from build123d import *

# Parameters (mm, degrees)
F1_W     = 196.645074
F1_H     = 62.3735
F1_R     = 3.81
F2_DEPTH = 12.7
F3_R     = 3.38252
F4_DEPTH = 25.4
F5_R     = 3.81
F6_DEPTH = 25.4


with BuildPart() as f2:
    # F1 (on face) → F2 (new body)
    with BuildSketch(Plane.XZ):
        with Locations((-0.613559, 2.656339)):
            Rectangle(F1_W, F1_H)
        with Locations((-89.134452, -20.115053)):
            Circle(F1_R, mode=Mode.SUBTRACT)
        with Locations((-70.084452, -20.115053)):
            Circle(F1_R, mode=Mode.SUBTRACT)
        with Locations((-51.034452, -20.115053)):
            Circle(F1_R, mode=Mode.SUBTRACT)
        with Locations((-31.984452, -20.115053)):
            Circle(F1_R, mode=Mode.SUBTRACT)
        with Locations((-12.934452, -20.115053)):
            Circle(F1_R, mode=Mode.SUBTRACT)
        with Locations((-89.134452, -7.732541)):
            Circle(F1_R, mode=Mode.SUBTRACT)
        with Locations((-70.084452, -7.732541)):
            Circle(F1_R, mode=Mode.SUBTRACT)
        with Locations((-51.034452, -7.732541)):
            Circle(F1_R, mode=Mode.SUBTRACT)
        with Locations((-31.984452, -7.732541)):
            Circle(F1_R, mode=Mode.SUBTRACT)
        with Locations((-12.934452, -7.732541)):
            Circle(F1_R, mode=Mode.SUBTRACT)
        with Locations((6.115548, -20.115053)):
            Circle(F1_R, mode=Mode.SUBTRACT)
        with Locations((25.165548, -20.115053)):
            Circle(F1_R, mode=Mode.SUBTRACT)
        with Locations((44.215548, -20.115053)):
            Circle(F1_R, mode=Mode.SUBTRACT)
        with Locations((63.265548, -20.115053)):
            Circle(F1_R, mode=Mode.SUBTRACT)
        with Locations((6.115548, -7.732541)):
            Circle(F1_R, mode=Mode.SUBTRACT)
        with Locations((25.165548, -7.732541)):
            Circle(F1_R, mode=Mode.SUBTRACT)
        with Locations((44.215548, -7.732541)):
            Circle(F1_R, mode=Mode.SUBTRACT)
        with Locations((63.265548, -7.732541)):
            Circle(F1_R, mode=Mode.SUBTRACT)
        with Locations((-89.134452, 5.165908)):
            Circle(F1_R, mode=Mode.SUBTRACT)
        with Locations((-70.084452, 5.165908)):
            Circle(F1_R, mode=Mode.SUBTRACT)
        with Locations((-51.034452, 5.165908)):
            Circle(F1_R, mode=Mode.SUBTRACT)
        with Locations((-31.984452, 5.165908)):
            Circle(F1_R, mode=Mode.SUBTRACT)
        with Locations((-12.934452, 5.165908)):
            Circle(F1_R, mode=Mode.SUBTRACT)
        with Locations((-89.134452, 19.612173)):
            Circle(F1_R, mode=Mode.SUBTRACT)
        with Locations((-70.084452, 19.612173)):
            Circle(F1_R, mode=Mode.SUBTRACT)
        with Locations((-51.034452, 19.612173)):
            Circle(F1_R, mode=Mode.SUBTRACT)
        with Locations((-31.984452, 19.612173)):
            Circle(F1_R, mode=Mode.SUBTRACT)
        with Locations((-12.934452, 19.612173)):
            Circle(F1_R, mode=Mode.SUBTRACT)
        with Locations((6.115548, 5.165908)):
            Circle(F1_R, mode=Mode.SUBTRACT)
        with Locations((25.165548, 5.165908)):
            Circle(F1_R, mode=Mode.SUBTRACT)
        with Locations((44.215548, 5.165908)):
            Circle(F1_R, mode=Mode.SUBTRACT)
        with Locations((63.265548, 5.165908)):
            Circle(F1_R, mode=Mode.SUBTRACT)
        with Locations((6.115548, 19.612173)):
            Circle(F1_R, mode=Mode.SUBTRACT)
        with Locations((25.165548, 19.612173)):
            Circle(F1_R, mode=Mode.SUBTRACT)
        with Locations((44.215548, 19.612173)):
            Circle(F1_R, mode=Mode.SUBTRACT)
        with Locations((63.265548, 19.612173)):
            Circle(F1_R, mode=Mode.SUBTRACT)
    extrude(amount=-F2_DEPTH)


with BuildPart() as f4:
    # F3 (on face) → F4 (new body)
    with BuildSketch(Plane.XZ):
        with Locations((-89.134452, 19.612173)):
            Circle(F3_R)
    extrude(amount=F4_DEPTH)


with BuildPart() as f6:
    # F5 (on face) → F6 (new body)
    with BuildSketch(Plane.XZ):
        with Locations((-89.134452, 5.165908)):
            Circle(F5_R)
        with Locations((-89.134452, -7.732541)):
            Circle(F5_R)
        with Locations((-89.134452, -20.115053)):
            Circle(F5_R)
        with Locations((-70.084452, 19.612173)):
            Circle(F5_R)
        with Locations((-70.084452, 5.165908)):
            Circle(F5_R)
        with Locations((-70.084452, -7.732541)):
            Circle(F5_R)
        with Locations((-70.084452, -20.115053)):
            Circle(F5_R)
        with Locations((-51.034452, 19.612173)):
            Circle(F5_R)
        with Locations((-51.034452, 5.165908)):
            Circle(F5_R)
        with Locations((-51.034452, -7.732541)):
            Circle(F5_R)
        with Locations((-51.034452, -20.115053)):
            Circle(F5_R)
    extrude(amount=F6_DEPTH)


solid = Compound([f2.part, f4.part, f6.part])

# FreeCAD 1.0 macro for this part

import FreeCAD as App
import Part
import Sketcher
from FreeCAD import Vector
Q = App.Units.Quantity


def add_polygon(sketch, points):
    """Adds a closed chain of lines whose ends are joined by coincident constraints."""
    first, n = sketch.GeometryCount, len(points)
    for a, b in zip(points, points[1:] + points[:1]):
        sketch.addGeometry(Part.LineSegment(App.Vector(*a, 0), App.Vector(*b, 0)), False)
    for i in range(n):
        sketch.addConstraint(Sketcher.Constraint("Coincident", first + i, 2, first + (i + 1) % n, 1))

doc = App.newDocument("Part")
params = doc.addObject("Spreadsheet::Sheet", "Params")
for row, (alias, value) in enumerate([
    ("sketch1_diameter", "0.3 in"),
    ("pad1_length", "0.5 in"),
    ("pad2_length", "1 in"),
    ("sketch3_diameter", "0.3 in"),
    ("pad3_length", "1 in"),
], start=1):
    params.set(f"A{row}", alias)
    params.set(f"B{row}", "=" + value)
    params.setAlias(f"B{row}", alias)

body = doc.addObject("PartDesign::Body", "Body")

sketch1 = body.newObject("Sketcher::SketchObject", "Sketch")
sketch1.AttachmentSupport = (doc.getObject("XZ_Plane"), [""])
sketch1.MapMode = "FlatFace"
add_polygon(sketch1, [(-98.9, 33.8), (-98.9, -28.5), (97.7, -28.5), (97.7, 33.8)])
sketch1.addGeometry(Part.Circle(Vector(-89.1, -20.1, 0), Vector(0, 0, 1), 3.8), False)
sketch1.addGeometry(Part.Circle(Vector(-70.1, -20.1, 0), Vector(0, 0, 1), 3.8), False)
sketch1.addGeometry(Part.Circle(Vector(-51, -20.1, 0), Vector(0, 0, 1), 3.8), False)
sketch1.addGeometry(Part.Circle(Vector(-32, -20.1, 0), Vector(0, 0, 1), 3.8), False)
sketch1.addGeometry(Part.Circle(Vector(-89.1, -7.7, 0), Vector(0, 0, 1), 3.8), False)
sketch1.addGeometry(Part.Circle(Vector(-70.1, -7.7, 0), Vector(0, 0, 1), 3.8), False)
sketch1.addGeometry(Part.Circle(Vector(-51, -7.7, 0), Vector(0, 0, 1), 3.8), False)
sketch1.addGeometry(Part.Circle(Vector(-32, -7.7, 0), Vector(0, 0, 1), 3.8), False)
sketch1.addGeometry(Part.Circle(Vector(-12.9, -20.1, 0), Vector(0, 0, 1), 3.8), False)
sketch1.addGeometry(Part.Circle(Vector(6.1, -20.1, 0), Vector(0, 0, 1), 3.8), False)
sketch1.addGeometry(Part.Circle(Vector(25.2, -20.1, 0), Vector(0, 0, 1), 3.8), False)
sketch1.addGeometry(Part.Circle(Vector(44.2, -20.1, 0), Vector(0, 0, 1), 3.8), False)
sketch1.addGeometry(Part.Circle(Vector(63.3, -20.1, 0), Vector(0, 0, 1), 3.8), False)
sketch1.addGeometry(Part.Circle(Vector(-12.9, -7.7, 0), Vector(0, 0, 1), 3.8), False)
sketch1.addGeometry(Part.Circle(Vector(6.1, -7.7, 0), Vector(0, 0, 1), 3.8), False)
sketch1.addGeometry(Part.Circle(Vector(25.2, -7.7, 0), Vector(0, 0, 1), 3.8), False)
sketch1.addGeometry(Part.Circle(Vector(44.2, -7.7, 0), Vector(0, 0, 1), 3.8), False)
sketch1.addGeometry(Part.Circle(Vector(63.3, -7.7, 0), Vector(0, 0, 1), 3.8), False)
sketch1.addGeometry(Part.Circle(Vector(-89.1, 5.2, 0), Vector(0, 0, 1), 3.8), False)
sketch1.addGeometry(Part.Circle(Vector(-70.1, 5.2, 0), Vector(0, 0, 1), 3.8), False)
sketch1.addGeometry(Part.Circle(Vector(-51, 5.2, 0), Vector(0, 0, 1), 3.8), False)
sketch1.addGeometry(Part.Circle(Vector(-32, 5.2, 0), Vector(0, 0, 1), 3.8), False)
sketch1.addGeometry(Part.Circle(Vector(-89.1, 19.6, 0), Vector(0, 0, 1), 3.8), False)
sketch1.addGeometry(Part.Circle(Vector(-70.1, 19.6, 0), Vector(0, 0, 1), 3.8), False)
sketch1.addGeometry(Part.Circle(Vector(-51, 19.6, 0), Vector(0, 0, 1), 3.8), False)
sketch1.addGeometry(Part.Circle(Vector(-32, 19.6, 0), Vector(0, 0, 1), 3.8), False)
sketch1.addGeometry(Part.Circle(Vector(-12.9, 5.2, 0), Vector(0, 0, 1), 3.8), False)
sketch1.addGeometry(Part.Circle(Vector(6.1, 5.2, 0), Vector(0, 0, 1), 3.8), False)
sketch1.addGeometry(Part.Circle(Vector(25.2, 5.2, 0), Vector(0, 0, 1), 3.8), False)
sketch1.addGeometry(Part.Circle(Vector(44.2, 5.2, 0), Vector(0, 0, 1), 3.8), False)
sketch1.addGeometry(Part.Circle(Vector(63.3, 5.2, 0), Vector(0, 0, 1), 3.8), False)
sketch1.addGeometry(Part.Circle(Vector(-12.9, 19.6, 0), Vector(0, 0, 1), 3.8), False)
sketch1.addGeometry(Part.Circle(Vector(6.1, 19.6, 0), Vector(0, 0, 1), 3.8), False)
sketch1.addGeometry(Part.Circle(Vector(25.2, 19.6, 0), Vector(0, 0, 1), 3.8), False)
sketch1.addGeometry(Part.Circle(Vector(44.2, 19.6, 0), Vector(0, 0, 1), 3.8), False)
sketch1.addGeometry(Part.Circle(Vector(63.3, 19.6, 0), Vector(0, 0, 1), 3.8), False)
sketch1.addConstraint(Sketcher.Constraint("Vertical", 0))
sketch1.addConstraint(Sketcher.Constraint("Horizontal", 1))
sketch1.addConstraint(Sketcher.Constraint("Vertical", 2))
sketch1.addConstraint(Sketcher.Constraint("Horizontal", 3))
sketch1.addConstraint(Sketcher.Constraint("Equal", 4, 5))
sketch1.addConstraint(Sketcher.Constraint("Equal", 5, 6))
sketch1.addConstraint(Sketcher.Constraint("Equal", 6, 7))
sketch1.addConstraint(Sketcher.Constraint("Equal", 7, 8))
sketch1.addConstraint(Sketcher.Constraint("Equal", 8, 9))
sketch1.addConstraint(Sketcher.Constraint("Equal", 9, 10))
sketch1.addConstraint(Sketcher.Constraint("Equal", 10, 11))
sketch1.addConstraint(Sketcher.Constraint("Equal", 11, 12))
sketch1.addConstraint(Sketcher.Constraint("Equal", 12, 13))
sketch1.addConstraint(Sketcher.Constraint("Equal", 13, 14))
sketch1.addConstraint(Sketcher.Constraint("Equal", 14, 15))
sketch1.addConstraint(Sketcher.Constraint("Equal", 15, 16))
sketch1.addConstraint(Sketcher.Constraint("Equal", 16, 17))
sketch1.addConstraint(Sketcher.Constraint("Equal", 17, 18))
sketch1.addConstraint(Sketcher.Constraint("Equal", 18, 19))
sketch1.addConstraint(Sketcher.Constraint("Equal", 19, 20))
sketch1.addConstraint(Sketcher.Constraint("Equal", 20, 21))
sketch1.addConstraint(Sketcher.Constraint("Equal", 21, 22))
sketch1.addConstraint(Sketcher.Constraint("Equal", 22, 23))
sketch1.addConstraint(Sketcher.Constraint("Equal", 23, 24))
sketch1.addConstraint(Sketcher.Constraint("Equal", 24, 25))
sketch1.addConstraint(Sketcher.Constraint("Equal", 25, 26))
sketch1.addConstraint(Sketcher.Constraint("Equal", 26, 27))
sketch1.addConstraint(Sketcher.Constraint("Equal", 27, 28))
sketch1.addConstraint(Sketcher.Constraint("Equal", 28, 29))
sketch1.addConstraint(Sketcher.Constraint("Equal", 29, 30))
sketch1.addConstraint(Sketcher.Constraint("Equal", 30, 31))
sketch1.addConstraint(Sketcher.Constraint("Equal", 31, 32))
sketch1.addConstraint(Sketcher.Constraint("Equal", 32, 33))
sketch1.addConstraint(Sketcher.Constraint("Equal", 33, 34))
sketch1.addConstraint(Sketcher.Constraint("Equal", 34, 35))
sketch1.addConstraint(Sketcher.Constraint("Equal", 35, 36))
sketch1.addConstraint(Sketcher.Constraint("Equal", 36, 37))
sketch1.addConstraint(Sketcher.Constraint("Equal", 37, 38))
sketch1.addConstraint(Sketcher.Constraint("Equal", 38, 39))
sketch1.addConstraint(Sketcher.Constraint("Horizontal", 4, 3, 5, 3))
sketch1.addConstraint(Sketcher.Constraint("Horizontal", 5, 3, 6, 3))
sketch1.addConstraint(Sketcher.Constraint("Horizontal", 6, 3, 7, 3))
sketch1.addConstraint(Sketcher.Constraint("Horizontal", 8, 3, 9, 3))
sketch1.addConstraint(Sketcher.Constraint("Horizontal", 9, 3, 10, 3))
sketch1.addConstraint(Sketcher.Constraint("Horizontal", 10, 3, 11, 3))
sketch1.addConstraint(Sketcher.Constraint("Horizontal", 7, 3, 12, 3))
sketch1.addConstraint(Sketcher.Constraint("Horizontal", 12, 3, 13, 3))
sketch1.addConstraint(Sketcher.Constraint("Horizontal", 13, 3, 14, 3))
sketch1.addConstraint(Sketcher.Constraint("Horizontal", 14, 3, 15, 3))
sketch1.addConstraint(Sketcher.Constraint("Horizontal", 15, 3, 16, 3))
sketch1.addConstraint(Sketcher.Constraint("Horizontal", 11, 3, 17, 3))
sketch1.addConstraint(Sketcher.Constraint("Horizontal", 17, 3, 18, 3))
sketch1.addConstraint(Sketcher.Constraint("Horizontal", 18, 3, 19, 3))
sketch1.addConstraint(Sketcher.Constraint("Horizontal", 19, 3, 20, 3))
sketch1.addConstraint(Sketcher.Constraint("Horizontal", 20, 3, 21, 3))
sketch1.addConstraint(Sketcher.Constraint("Horizontal", 22, 3, 23, 3))
sketch1.addConstraint(Sketcher.Constraint("Horizontal", 23, 3, 24, 3))
sketch1.addConstraint(Sketcher.Constraint("Horizontal", 24, 3, 25, 3))
sketch1.addConstraint(Sketcher.Constraint("Horizontal", 26, 3, 27, 3))
sketch1.addConstraint(Sketcher.Constraint("Horizontal", 27, 3, 28, 3))
sketch1.addConstraint(Sketcher.Constraint("Horizontal", 28, 3, 29, 3))
sketch1.addConstraint(Sketcher.Constraint("Horizontal", 25, 3, 30, 3))
sketch1.addConstraint(Sketcher.Constraint("Horizontal", 30, 3, 31, 3))
sketch1.addConstraint(Sketcher.Constraint("Horizontal", 31, 3, 32, 3))
sketch1.addConstraint(Sketcher.Constraint("Horizontal", 32, 3, 33, 3))
sketch1.addConstraint(Sketcher.Constraint("Horizontal", 33, 3, 34, 3))
sketch1.addConstraint(Sketcher.Constraint("Horizontal", 29, 3, 35, 3))
sketch1.addConstraint(Sketcher.Constraint("Horizontal", 35, 3, 36, 3))
sketch1.addConstraint(Sketcher.Constraint("Horizontal", 36, 3, 37, 3))
sketch1.addConstraint(Sketcher.Constraint("Horizontal", 37, 3, 38, 3))
sketch1.addConstraint(Sketcher.Constraint("Horizontal", 38, 3, 39, 3))
sketch1.addConstraint(Sketcher.Constraint("Vertical", 4, 3, 8, 3))
sketch1.addConstraint(Sketcher.Constraint("Vertical", 5, 3, 9, 3))
sketch1.addConstraint(Sketcher.Constraint("Vertical", 6, 3, 10, 3))
sketch1.addConstraint(Sketcher.Constraint("Vertical", 7, 3, 11, 3))
sketch1.addConstraint(Sketcher.Constraint("Vertical", 12, 3, 17, 3))
sketch1.addConstraint(Sketcher.Constraint("Vertical", 13, 3, 18, 3))
sketch1.addConstraint(Sketcher.Constraint("Vertical", 14, 3, 19, 3))
sketch1.addConstraint(Sketcher.Constraint("Vertical", 15, 3, 20, 3))
sketch1.addConstraint(Sketcher.Constraint("Vertical", 16, 3, 21, 3))
sketch1.addConstraint(Sketcher.Constraint("Vertical", 8, 3, 22, 3))
sketch1.addConstraint(Sketcher.Constraint("Vertical", 9, 3, 23, 3))
sketch1.addConstraint(Sketcher.Constraint("Vertical", 10, 3, 24, 3))
sketch1.addConstraint(Sketcher.Constraint("Vertical", 11, 3, 25, 3))
sketch1.addConstraint(Sketcher.Constraint("Vertical", 22, 3, 26, 3))
sketch1.addConstraint(Sketcher.Constraint("Vertical", 23, 3, 27, 3))
sketch1.addConstraint(Sketcher.Constraint("Vertical", 24, 3, 28, 3))
sketch1.addConstraint(Sketcher.Constraint("Vertical", 25, 3, 29, 3))
sketch1.addConstraint(Sketcher.Constraint("Vertical", 17, 3, 30, 3))
sketch1.addConstraint(Sketcher.Constraint("Vertical", 18, 3, 31, 3))
sketch1.addConstraint(Sketcher.Constraint("Vertical", 19, 3, 32, 3))
sketch1.addConstraint(Sketcher.Constraint("Vertical", 20, 3, 33, 3))
sketch1.addConstraint(Sketcher.Constraint("Vertical", 21, 3, 34, 3))
sketch1.addConstraint(Sketcher.Constraint("Vertical", 30, 3, 35, 3))
sketch1.addConstraint(Sketcher.Constraint("Vertical", 31, 3, 36, 3))
sketch1.addConstraint(Sketcher.Constraint("Vertical", 32, 3, 37, 3))
sketch1.addConstraint(Sketcher.Constraint("Vertical", 33, 3, 38, 3))
sketch1.addConstraint(Sketcher.Constraint("Vertical", 34, 3, 39, 3))
sketch1.addConstraint(Sketcher.Constraint("Diameter", 4, Q("0.3 in")))
sketch1.addConstraint(Sketcher.Constraint("DistanceX", 6, 3, 14, 3, Q("3 in")))
sketch1.addConstraint(Sketcher.Constraint("DistanceX", 7, 3, 15, 3, Q("3 in")))
sketch1.addConstraint(Sketcher.Constraint("DistanceX", 12, 3, 16, 3, Q("3 in")))
sketch1.addConstraint(Sketcher.Constraint("DistanceX", 4, 3, 6, 3, Q("1.5 in")))
sketch1.addConstraint(Sketcher.Constraint("DistanceX", 5, 3, 7, 3, Q("1.5 in")))
sketch1.addConstraint(Sketcher.Constraint("DistanceX", 6, 3, 12, 3, Q("1.5 in")))
sketch1.addConstraint(Sketcher.Constraint("DistanceX", 7, 3, 13, 3, Q("1.5 in")))
sketch1.addConstraint(Sketcher.Constraint("DistanceX", 4, 3, 5, 3, Q("0.75 in")))
sketch1.addConstraint(Sketcher.Constraint("DistanceY", 0, 2, 0, 1, Q("62.3735 mm")))
sketch1.addConstraint(Sketcher.Constraint("DistanceX", 1, 1, 1, 2, Q("196.645074 mm")))
sketch1.addConstraint(Sketcher.Constraint("DistanceX", 4, 3, -1, 1, Q("89.134452 mm")))
sketch1.addConstraint(Sketcher.Constraint("DistanceY", 8, 3, -1, 1, Q("7.732541 mm")))
sketch1.addConstraint(Sketcher.Constraint("DistanceY", 0, 2, -1, 1, Q("28.530411 mm")))
sketch1.addConstraint(Sketcher.Constraint("DistanceX", -1, 1, 1, 2, Q("97.708978 mm")))
sketch1.addConstraint(Sketcher.Constraint("DistanceY", 4, 3, 8, 3, Q("12.382512 mm")))
sketch1.addConstraint(Sketcher.Constraint("DistanceY", 8, 3, 22, 3, Q("12.898449 mm")))
sketch1.addConstraint(Sketcher.Constraint("DistanceY", -1, 1, 26, 3, Q("19.612173 mm")))
sketch1.setExpression("Constraints[102]", "Params.sketch1_diameter")
pad1 = body.newObject("PartDesign::Pad", "Pad")
pad1.Profile = sketch1
pad1.setExpression("Length", "Params.pad1_length")
pad1.Reversed = True
body2 = doc.addObject("PartDesign::Body", "Body001")

sketch2 = body2.newObject("Sketcher::SketchObject", "Sketch001")
sketch2.AttachmentSupport = (doc.getObject("XZ_Plane001"), [""])
sketch2.MapMode = "FlatFace"
sketch2.addGeometry(Part.Circle(Vector(-89.1, 19.6, 0), Vector(0, 0, 1), 3.4), False)
sketch2.addConstraint(Sketcher.Constraint("Diameter", 0, Q("6.76504 mm")))
sketch2.addConstraint(Sketcher.Constraint("DistanceX", 0, 3, -1, 1, Q("89.134452 mm")))
sketch2.addConstraint(Sketcher.Constraint("DistanceY", -1, 1, 0, 3, Q("19.612173 mm")))
pad2 = body2.newObject("PartDesign::Pad", "Pad001")
pad2.Profile = sketch2
pad2.setExpression("Length", "Params.pad2_length")
body3 = doc.addObject("PartDesign::Body", "Body002")
body3.AllowCompound = True

sketch3 = body3.newObject("Sketcher::SketchObject", "Sketch002")
sketch3.AttachmentSupport = (doc.getObject("XZ_Plane002"), [""])
sketch3.MapMode = "FlatFace"
sketch3.addGeometry(Part.Circle(Vector(-89.1, 5.2, 0), Vector(0, 0, 1), 3.8), False)
sketch3.addGeometry(Part.Circle(Vector(-89.1, -7.7, 0), Vector(0, 0, 1), 3.8), False)
sketch3.addGeometry(Part.Circle(Vector(-89.1, -20.1, 0), Vector(0, 0, 1), 3.8), False)
sketch3.addGeometry(Part.Circle(Vector(-70.1, 19.6, 0), Vector(0, 0, 1), 3.8), False)
sketch3.addGeometry(Part.Circle(Vector(-70.1, 5.2, 0), Vector(0, 0, 1), 3.8), False)
sketch3.addGeometry(Part.Circle(Vector(-70.1, -7.7, 0), Vector(0, 0, 1), 3.8), False)
sketch3.addGeometry(Part.Circle(Vector(-70.1, -20.1, 0), Vector(0, 0, 1), 3.8), False)
sketch3.addGeometry(Part.Circle(Vector(-51, 19.6, 0), Vector(0, 0, 1), 3.8), False)
sketch3.addGeometry(Part.Circle(Vector(-51, 5.2, 0), Vector(0, 0, 1), 3.8), False)
sketch3.addGeometry(Part.Circle(Vector(-51, -7.7, 0), Vector(0, 0, 1), 3.8), False)
sketch3.addGeometry(Part.Circle(Vector(-51, -20.1, 0), Vector(0, 0, 1), 3.8), False)
sketch3.addConstraint(Sketcher.Constraint("Equal", 0, 1))
sketch3.addConstraint(Sketcher.Constraint("Equal", 1, 2))
sketch3.addConstraint(Sketcher.Constraint("Equal", 2, 3))
sketch3.addConstraint(Sketcher.Constraint("Equal", 3, 4))
sketch3.addConstraint(Sketcher.Constraint("Equal", 4, 5))
sketch3.addConstraint(Sketcher.Constraint("Equal", 5, 6))
sketch3.addConstraint(Sketcher.Constraint("Equal", 6, 7))
sketch3.addConstraint(Sketcher.Constraint("Equal", 7, 8))
sketch3.addConstraint(Sketcher.Constraint("Equal", 8, 9))
sketch3.addConstraint(Sketcher.Constraint("Equal", 9, 10))
sketch3.addConstraint(Sketcher.Constraint("Horizontal", 0, 3, 4, 3))
sketch3.addConstraint(Sketcher.Constraint("Horizontal", 1, 3, 5, 3))
sketch3.addConstraint(Sketcher.Constraint("Horizontal", 2, 3, 6, 3))
sketch3.addConstraint(Sketcher.Constraint("Horizontal", 3, 3, 7, 3))
sketch3.addConstraint(Sketcher.Constraint("Horizontal", 4, 3, 8, 3))
sketch3.addConstraint(Sketcher.Constraint("Horizontal", 5, 3, 9, 3))
sketch3.addConstraint(Sketcher.Constraint("Horizontal", 6, 3, 10, 3))
sketch3.addConstraint(Sketcher.Constraint("Vertical", 0, 3, 1, 3))
sketch3.addConstraint(Sketcher.Constraint("Vertical", 1, 3, 2, 3))
sketch3.addConstraint(Sketcher.Constraint("Vertical", 3, 3, 4, 3))
sketch3.addConstraint(Sketcher.Constraint("Vertical", 4, 3, 5, 3))
sketch3.addConstraint(Sketcher.Constraint("Vertical", 5, 3, 6, 3))
sketch3.addConstraint(Sketcher.Constraint("Vertical", 7, 3, 8, 3))
sketch3.addConstraint(Sketcher.Constraint("Vertical", 8, 3, 9, 3))
sketch3.addConstraint(Sketcher.Constraint("Vertical", 9, 3, 10, 3))
sketch3.addConstraint(Sketcher.Constraint("Diameter", 0, Q("0.3 in")))
sketch3.addConstraint(Sketcher.Constraint("DistanceX", 0, 3, 7, 3, Q("1.5 in")))
sketch3.addConstraint(Sketcher.Constraint("DistanceX", 0, 3, 3, 3, Q("0.75 in")))
sketch3.addConstraint(Sketcher.Constraint("DistanceX", 0, 3, -1, 1, Q("89.134452 mm")))
sketch3.addConstraint(Sketcher.Constraint("DistanceY", 1, 3, -1, 1, Q("7.732541 mm")))
sketch3.addConstraint(Sketcher.Constraint("DistanceY", 1, 3, 0, 3, Q("12.898449 mm")))
sketch3.addConstraint(Sketcher.Constraint("DistanceY", 2, 3, 1, 3, Q("12.382512 mm")))
sketch3.addConstraint(Sketcher.Constraint("DistanceY", -1, 1, 3, 3, Q("19.612173 mm")))
sketch3.setExpression("Constraints[25]", "Params.sketch3_diameter")
pad3 = body3.newObject("PartDesign::Pad", "Pad002")
pad3.Profile = sketch3
pad3.setExpression("Length", "Params.pad3_length")

doc.recompute()
